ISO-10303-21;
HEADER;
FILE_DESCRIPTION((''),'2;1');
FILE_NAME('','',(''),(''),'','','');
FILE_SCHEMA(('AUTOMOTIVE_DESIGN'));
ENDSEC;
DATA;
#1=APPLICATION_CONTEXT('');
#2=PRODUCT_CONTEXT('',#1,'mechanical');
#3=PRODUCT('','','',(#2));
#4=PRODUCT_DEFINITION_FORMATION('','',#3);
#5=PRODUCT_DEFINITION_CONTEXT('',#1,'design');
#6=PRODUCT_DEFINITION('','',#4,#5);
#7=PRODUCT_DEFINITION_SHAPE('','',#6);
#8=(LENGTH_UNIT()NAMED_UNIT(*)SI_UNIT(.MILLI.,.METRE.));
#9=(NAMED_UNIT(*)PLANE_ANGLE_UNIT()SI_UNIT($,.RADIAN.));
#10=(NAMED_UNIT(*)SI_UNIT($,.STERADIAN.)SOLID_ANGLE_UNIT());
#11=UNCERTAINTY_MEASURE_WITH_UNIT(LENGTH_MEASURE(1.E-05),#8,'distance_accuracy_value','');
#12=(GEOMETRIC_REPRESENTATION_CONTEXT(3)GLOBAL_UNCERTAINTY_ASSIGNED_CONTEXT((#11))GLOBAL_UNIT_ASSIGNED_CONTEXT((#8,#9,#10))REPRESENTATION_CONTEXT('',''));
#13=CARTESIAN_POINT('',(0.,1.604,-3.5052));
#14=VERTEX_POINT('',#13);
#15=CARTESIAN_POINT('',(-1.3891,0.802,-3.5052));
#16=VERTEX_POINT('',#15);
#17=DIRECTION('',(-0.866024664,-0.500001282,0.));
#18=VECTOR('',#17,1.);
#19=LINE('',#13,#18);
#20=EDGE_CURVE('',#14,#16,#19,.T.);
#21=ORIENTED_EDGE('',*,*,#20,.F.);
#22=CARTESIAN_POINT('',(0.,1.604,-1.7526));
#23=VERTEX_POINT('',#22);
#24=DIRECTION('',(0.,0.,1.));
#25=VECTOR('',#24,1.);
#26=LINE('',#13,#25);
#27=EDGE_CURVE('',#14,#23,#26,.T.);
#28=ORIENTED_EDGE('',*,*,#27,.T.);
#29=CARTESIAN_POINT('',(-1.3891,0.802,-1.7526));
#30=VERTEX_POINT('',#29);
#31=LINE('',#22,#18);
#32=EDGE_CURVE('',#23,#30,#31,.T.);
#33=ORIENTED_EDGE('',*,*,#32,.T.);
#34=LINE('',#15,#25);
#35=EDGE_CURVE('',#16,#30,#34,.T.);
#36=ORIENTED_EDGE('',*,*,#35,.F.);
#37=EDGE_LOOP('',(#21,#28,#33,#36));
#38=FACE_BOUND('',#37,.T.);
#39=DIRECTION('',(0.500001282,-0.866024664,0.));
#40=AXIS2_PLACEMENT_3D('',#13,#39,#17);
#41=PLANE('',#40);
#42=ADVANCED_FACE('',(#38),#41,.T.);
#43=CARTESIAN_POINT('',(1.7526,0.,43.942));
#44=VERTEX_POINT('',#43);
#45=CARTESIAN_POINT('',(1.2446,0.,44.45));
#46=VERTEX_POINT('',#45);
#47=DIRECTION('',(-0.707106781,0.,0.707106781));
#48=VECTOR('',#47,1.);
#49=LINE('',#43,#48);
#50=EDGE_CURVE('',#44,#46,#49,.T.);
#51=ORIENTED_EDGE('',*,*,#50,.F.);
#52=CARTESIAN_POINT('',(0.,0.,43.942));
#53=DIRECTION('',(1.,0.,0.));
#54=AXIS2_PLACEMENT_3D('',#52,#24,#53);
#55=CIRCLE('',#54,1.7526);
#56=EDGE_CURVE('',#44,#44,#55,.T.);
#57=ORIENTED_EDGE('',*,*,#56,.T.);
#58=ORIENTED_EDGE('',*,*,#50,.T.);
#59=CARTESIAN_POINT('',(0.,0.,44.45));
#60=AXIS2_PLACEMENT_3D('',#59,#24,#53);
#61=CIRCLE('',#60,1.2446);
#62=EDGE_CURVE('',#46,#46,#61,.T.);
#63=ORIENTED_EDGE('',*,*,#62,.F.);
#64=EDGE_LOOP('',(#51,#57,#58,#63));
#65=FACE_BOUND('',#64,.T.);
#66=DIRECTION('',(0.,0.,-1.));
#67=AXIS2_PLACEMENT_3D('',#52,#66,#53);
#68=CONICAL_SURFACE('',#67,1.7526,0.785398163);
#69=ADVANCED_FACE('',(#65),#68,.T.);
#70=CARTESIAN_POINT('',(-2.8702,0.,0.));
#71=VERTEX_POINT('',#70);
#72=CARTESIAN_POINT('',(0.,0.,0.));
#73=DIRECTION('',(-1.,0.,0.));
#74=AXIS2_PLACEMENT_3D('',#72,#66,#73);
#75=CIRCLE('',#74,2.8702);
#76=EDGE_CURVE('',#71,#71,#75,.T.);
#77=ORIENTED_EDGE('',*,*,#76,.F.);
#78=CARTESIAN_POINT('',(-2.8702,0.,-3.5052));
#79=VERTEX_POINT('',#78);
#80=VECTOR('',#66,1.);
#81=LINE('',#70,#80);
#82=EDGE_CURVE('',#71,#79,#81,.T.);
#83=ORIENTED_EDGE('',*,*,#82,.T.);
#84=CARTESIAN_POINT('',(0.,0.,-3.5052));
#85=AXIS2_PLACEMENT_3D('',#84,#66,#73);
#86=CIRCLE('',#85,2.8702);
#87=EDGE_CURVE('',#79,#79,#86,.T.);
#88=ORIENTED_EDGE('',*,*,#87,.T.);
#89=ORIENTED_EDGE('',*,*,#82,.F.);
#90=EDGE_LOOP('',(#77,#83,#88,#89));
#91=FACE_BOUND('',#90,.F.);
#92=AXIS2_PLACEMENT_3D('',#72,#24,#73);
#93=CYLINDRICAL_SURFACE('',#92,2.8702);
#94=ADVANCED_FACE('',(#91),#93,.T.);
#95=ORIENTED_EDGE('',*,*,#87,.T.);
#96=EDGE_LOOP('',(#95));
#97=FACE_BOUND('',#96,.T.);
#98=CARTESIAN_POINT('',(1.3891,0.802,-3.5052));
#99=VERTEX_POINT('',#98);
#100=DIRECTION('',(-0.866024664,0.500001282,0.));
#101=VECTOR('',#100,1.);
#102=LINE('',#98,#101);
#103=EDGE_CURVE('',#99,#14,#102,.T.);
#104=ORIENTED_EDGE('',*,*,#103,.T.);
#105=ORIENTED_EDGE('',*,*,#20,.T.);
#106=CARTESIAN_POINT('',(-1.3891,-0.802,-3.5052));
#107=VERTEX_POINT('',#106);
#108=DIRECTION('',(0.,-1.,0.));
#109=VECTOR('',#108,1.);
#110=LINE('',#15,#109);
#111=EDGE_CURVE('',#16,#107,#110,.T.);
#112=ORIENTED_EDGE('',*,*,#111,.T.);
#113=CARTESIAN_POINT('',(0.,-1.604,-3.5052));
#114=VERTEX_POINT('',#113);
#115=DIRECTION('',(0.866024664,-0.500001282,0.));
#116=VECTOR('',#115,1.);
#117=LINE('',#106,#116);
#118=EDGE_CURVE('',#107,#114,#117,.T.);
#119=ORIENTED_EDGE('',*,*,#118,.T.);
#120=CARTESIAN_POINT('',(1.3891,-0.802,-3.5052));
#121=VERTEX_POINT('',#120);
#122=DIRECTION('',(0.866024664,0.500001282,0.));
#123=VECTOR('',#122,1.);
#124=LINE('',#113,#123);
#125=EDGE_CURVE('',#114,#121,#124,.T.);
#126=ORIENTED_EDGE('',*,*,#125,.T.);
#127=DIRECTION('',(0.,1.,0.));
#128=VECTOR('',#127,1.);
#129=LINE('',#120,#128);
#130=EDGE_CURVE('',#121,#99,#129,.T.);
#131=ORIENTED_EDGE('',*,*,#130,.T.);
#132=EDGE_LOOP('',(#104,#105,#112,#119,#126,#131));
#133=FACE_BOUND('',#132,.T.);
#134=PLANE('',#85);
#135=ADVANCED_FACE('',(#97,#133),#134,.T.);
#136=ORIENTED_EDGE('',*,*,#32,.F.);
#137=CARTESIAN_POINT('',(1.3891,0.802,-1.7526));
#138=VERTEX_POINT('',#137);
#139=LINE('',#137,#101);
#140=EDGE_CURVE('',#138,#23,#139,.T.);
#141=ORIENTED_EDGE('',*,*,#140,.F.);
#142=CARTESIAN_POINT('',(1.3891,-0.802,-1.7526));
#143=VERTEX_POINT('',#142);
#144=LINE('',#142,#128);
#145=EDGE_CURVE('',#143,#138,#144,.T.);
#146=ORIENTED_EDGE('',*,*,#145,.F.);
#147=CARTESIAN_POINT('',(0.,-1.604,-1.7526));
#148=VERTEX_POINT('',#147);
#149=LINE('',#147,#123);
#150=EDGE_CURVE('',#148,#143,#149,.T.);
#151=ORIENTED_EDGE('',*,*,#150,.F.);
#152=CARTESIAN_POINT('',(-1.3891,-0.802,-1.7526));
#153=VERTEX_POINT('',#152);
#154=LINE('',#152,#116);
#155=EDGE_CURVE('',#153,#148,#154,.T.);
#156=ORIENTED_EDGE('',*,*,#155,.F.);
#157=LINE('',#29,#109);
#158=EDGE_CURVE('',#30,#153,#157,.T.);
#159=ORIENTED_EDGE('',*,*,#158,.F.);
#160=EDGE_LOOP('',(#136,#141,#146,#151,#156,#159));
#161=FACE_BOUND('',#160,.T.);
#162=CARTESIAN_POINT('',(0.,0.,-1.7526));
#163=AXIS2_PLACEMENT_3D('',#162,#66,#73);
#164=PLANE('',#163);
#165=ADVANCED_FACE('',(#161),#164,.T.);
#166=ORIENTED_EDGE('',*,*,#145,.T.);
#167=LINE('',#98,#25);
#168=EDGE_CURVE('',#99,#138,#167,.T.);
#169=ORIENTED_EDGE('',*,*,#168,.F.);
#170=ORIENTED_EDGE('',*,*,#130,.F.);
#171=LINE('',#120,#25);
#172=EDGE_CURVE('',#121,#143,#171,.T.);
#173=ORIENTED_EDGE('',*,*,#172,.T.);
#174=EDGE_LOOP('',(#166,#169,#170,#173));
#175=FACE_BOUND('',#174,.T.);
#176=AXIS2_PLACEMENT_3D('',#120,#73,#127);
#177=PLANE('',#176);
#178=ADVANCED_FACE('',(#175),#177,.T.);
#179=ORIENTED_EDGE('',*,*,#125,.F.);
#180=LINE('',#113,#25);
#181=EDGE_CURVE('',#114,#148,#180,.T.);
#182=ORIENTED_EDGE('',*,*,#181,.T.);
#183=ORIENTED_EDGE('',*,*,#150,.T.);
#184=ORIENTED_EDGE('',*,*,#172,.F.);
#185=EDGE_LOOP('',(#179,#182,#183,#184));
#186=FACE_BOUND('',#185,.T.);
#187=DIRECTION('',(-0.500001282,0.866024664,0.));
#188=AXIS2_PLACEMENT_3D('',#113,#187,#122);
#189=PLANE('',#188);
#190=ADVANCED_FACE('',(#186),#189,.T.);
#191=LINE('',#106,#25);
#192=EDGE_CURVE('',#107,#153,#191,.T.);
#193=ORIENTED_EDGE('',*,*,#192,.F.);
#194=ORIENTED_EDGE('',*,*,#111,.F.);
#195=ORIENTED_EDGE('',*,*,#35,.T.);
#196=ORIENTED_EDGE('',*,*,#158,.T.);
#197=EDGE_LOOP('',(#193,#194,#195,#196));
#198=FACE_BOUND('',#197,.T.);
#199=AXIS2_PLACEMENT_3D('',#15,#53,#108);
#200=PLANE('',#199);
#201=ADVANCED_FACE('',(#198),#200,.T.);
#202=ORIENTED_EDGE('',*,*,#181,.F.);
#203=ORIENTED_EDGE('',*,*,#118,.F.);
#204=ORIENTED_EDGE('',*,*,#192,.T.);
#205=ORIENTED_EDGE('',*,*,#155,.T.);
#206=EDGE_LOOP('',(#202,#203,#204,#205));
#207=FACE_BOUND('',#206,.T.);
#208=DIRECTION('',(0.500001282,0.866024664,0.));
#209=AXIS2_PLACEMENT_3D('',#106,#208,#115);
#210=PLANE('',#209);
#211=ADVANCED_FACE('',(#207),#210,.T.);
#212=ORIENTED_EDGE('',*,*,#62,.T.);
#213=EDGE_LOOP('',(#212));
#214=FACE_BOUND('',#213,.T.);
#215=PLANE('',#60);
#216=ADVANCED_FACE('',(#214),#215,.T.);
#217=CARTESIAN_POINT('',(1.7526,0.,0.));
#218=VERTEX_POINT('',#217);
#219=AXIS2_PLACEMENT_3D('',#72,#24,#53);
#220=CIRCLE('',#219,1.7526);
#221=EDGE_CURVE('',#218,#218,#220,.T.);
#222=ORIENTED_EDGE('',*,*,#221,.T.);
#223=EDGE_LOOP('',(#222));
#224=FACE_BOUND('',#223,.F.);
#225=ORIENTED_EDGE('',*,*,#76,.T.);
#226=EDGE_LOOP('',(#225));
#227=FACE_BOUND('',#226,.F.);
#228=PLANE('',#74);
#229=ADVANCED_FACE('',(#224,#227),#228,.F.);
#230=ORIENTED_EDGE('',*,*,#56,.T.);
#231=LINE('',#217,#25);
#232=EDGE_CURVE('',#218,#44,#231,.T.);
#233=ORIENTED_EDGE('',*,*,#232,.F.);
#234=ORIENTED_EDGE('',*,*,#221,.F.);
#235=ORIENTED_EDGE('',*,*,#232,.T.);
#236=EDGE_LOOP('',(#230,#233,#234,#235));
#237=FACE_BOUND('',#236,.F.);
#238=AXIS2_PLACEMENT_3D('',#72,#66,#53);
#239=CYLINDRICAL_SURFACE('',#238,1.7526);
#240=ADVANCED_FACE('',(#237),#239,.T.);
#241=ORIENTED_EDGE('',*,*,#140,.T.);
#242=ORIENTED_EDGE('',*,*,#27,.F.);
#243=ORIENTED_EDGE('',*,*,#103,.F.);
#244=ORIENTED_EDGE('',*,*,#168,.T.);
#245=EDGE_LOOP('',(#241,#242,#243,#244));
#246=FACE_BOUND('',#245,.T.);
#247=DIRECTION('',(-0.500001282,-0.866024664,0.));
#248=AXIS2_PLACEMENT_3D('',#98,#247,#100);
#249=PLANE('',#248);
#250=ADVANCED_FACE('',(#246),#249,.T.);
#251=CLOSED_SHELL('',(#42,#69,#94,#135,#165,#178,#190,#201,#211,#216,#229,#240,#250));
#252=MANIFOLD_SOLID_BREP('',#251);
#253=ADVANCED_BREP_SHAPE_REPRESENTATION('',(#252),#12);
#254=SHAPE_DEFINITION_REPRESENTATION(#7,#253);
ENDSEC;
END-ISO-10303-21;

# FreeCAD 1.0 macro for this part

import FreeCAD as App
import Part
import Sketcher

V = App.Vector
Q = App.Units.Quantity


def edges_at(feature, points):
    """Names of the edges that pass closest to the given points."""
    edges = feature.Shape.Edges
    near = lambda p: min(range(len(edges)), key=lambda i: edges[i].distToShape(Part.Vertex(*p))[0])
    return sorted({f"Edge{near(p) + 1}" for p in points})

doc = App.newDocument("Part")
body = doc.addObject("PartDesign::Body", "Body")

# Sketch on XY plane
sketch1 = body.newObject("Sketcher::SketchObject", "Sketch")
sketch1.AttachmentSupport = (doc.getObject("XY_Plane"), [""])
sketch1.MapMode = "FlatFace"
sketch1.addGeometry(Part.Circle(V(0, 0, 0), V(0, 0, 1), 1.8), False)
sketch1.addConstraint(Sketcher.Constraint("Coincident", 0, 3, -1, 1))
sketch1.addConstraint(Sketcher.Constraint("Diameter", 0, Q("0.138 in")))
pad1 = body.newObject("PartDesign::Pad", "Pad")
pad1.Profile = sketch1
pad1.Length = Q("1.75 in")

# Sketch on XY plane
sketch2 = body.newObject("Sketcher::SketchObject", "Sketch001")
sketch2.AttachmentSupport = (doc.getObject("XY_Plane"), [""])
sketch2.MapMode = "FlatFace"
sketch2.addGeometry(Part.Circle(V(0, 0, 0), V(0, 0, 1), 2.9), False)
sketch2.addConstraint(Sketcher.Constraint("Coincident", 0, 3, -1, 1))
sketch2.addConstraint(Sketcher.Constraint("Diameter", 0, Q("0.226 in")))
pad2 = body.newObject("PartDesign::Pad", "Pad001")
pad2.Profile = sketch2
pad2.Length = Q("0.138 in")
pad2.Reversed = True

# Sketch on XY plane
sketch3 = body.newObject("Sketcher::SketchObject", "Sketch002")
sketch3.AttachmentSupport = (doc.getObject("XY_Plane"), [""])
sketch3.MapMode = "FlatFace"
sketch3.AttachmentOffset = App.Placement(V(0, 0, -0.138 * 25.4), App.Rotation())
sketch3.addGeometry(Part.LineSegment(V(-1.4, 0.8, 0), V(0, 1.6, 0)), False)
sketch3.addGeometry(Part.LineSegment(V(0, 1.6, 0), V(1.4, 0.8, 0)), False)
sketch3.addGeometry(Part.LineSegment(V(1.4, 0.8, 0), V(1.4, -0.8, 0)), False)
sketch3.addGeometry(Part.LineSegment(V(1.4, -0.8, 0), V(0, -1.6, 0)), False)
sketch3.addGeometry(Part.LineSegment(V(0, -1.6, 0), V(-1.4, -0.8, 0)), False)
sketch3.addGeometry(Part.LineSegment(V(-1.4, -0.8, 0), V(-1.4, 0.8, 0)), False)
sketch3.addConstraint(Sketcher.Constraint("Coincident", 0, 2, 1, 1))
sketch3.addConstraint(Sketcher.Constraint("Coincident", 1, 2, 2, 1))
sketch3.addConstraint(Sketcher.Constraint("Coincident", 2, 2, 3, 1))
sketch3.addConstraint(Sketcher.Constraint("Coincident", 3, 2, 4, 1))
sketch3.addConstraint(Sketcher.Constraint("Coincident", 4, 2, 5, 1))
sketch3.addConstraint(Sketcher.Constraint("Coincident", 5, 2, 0, 1))
sketch3.addConstraint(Sketcher.Constraint("Vertical", 2))
sketch3.addConstraint(Sketcher.Constraint("Vertical", 5))
sketch3.addConstraint(Sketcher.Constraint("Symmetric", 0, 2, 3, 2, -1, 1))
sketch3.addConstraint(Sketcher.Constraint("Symmetric", 1, 2, 4, 2, -1, 1))
sketch3.addConstraint(Sketcher.Constraint("PointOnObject", 0, 2, -2))
sketch3.addConstraint(Sketcher.Constraint("Parallel", 0, 3))
sketch3.addConstraint(Sketcher.Constraint("Horizontal", 2, 2, 4, 2))
sketch3.addConstraint(Sketcher.Constraint("Angle", 0, Q("30 deg")))
sketch3.addConstraint(Sketcher.Constraint("DistanceX", 4, 2, 2, 2, Q("0.109378 in")))
sketch3.addConstraint(Sketcher.Constraint("DistanceY", 2, 2, 2, 1, 1.604))
pocket1 = body.newObject("PartDesign::Pocket", "Pocket")
pocket1.Profile = sketch3
pocket1.Length = Q("0.069 in")
pocket1.Reversed = True
doc.recompute()

chamfer = body.newObject("PartDesign::Chamfer", "Chamfer")
chamfer.Base = (pocket1, edges_at(pocket1, [(-1.753, 0, 44.45)]))
chamfer.Size = Q("0.02 in")

doc.recompute()
